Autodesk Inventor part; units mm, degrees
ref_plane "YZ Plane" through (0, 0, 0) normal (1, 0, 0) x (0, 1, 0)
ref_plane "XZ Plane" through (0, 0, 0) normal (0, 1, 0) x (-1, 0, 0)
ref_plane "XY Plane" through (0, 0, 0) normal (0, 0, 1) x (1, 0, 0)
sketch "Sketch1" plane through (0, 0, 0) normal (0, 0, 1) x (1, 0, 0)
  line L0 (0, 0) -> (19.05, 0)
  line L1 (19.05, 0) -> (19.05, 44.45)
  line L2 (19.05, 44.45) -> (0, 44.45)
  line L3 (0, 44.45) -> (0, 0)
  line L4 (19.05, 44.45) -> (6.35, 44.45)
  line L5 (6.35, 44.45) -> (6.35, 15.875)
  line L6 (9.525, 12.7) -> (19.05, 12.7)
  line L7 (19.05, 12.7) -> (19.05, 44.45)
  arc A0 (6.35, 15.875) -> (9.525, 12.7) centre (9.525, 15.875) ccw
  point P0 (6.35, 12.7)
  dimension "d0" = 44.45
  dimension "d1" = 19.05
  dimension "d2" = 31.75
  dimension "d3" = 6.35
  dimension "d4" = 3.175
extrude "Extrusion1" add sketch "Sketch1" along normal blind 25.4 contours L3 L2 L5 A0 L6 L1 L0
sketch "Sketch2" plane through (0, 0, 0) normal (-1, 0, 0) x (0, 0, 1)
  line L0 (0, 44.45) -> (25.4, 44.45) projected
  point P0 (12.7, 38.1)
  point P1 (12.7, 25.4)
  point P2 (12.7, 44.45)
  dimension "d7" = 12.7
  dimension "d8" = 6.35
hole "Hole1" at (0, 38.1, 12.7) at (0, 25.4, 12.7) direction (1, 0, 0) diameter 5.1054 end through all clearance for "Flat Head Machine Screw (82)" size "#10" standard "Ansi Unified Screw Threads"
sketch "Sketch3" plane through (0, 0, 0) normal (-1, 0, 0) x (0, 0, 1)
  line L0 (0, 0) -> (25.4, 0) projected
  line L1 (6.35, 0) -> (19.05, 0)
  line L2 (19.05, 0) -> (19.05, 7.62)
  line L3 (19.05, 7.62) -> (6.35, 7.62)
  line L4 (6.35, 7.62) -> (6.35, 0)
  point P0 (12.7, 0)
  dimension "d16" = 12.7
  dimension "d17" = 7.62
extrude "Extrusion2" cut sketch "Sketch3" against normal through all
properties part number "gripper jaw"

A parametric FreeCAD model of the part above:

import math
import FreeCAD as App
import Part
import Sketcher

V = App.Vector
Q = App.Units.Quantity


def add_polygon(sketch, points):
    """Adds a closed chain of lines whose ends are joined by coincident constraints."""
    first, n = sketch.GeometryCount, len(points)
    for a, b in zip(points, points[1:] + points[:1]):
        sketch.addGeometry(Part.LineSegment(App.Vector(*a, 0), App.Vector(*b, 0)), False)
    for i in range(n):
        sketch.addConstraint(Sketcher.Constraint("Coincident", first + i, 2, first + (i + 1) % n, 1))

doc = App.newDocument("Part")
body = doc.addObject("PartDesign::Body", "Body")

# Sketch on XY plane
sketch1 = body.newObject("Sketcher::SketchObject", "Sketch")
sketch1.AttachmentSupport = (doc.getObject("XY_Plane"), [""])
sketch1.MapMode = "FlatFace"
sketch1.addGeometry(Part.LineSegment(V(0, 44.45, 0), V(0, 0, 0)), False)
sketch1.addGeometry(Part.LineSegment(V(0, 0, 0), V(19.05, 0, 0)), False)
sketch1.addGeometry(Part.LineSegment(V(19.05, 0, 0), V(19.05, 12.7, 0)), False)
sketch1.addGeometry(Part.LineSegment(V(19.05, 12.7, 0), V(9.525, 12.7, 0)), False)
sketch1.addGeometry(Part.ArcOfCircle(Part.Circle(V(9.525, 15.875, 0), V(0, 0, 1), 3.175), math.radians(180), math.radians(270)), False)
sketch1.addGeometry(Part.LineSegment(V(6.35, 15.875, 0), V(6.35, 44.45, 0)), False)
sketch1.addGeometry(Part.LineSegment(V(6.35, 44.45, 0), V(0, 44.45, 0)), False)
sketch1.addConstraint(Sketcher.Constraint("Coincident", 0, 2, 1, 1))
sketch1.addConstraint(Sketcher.Constraint("Coincident", 1, 2, 2, 1))
sketch1.addConstraint(Sketcher.Constraint("Coincident", 2, 2, 3, 1))
sketch1.addConstraint(Sketcher.Constraint("Tangent", 3, 2, 4, 2))
sketch1.addConstraint(Sketcher.Constraint("Tangent", 4, 1, 5, 1))
sketch1.addConstraint(Sketcher.Constraint("Coincident", 5, 2, 6, 1))
sketch1.addConstraint(Sketcher.Constraint("Coincident", 6, 2, 0, 1))
sketch1.addConstraint(Sketcher.Constraint("Vertical", 0))
sketch1.addConstraint(Sketcher.Constraint("Horizontal", 1))
sketch1.addConstraint(Sketcher.Constraint("Vertical", 2))
sketch1.addConstraint(Sketcher.Constraint("Horizontal", 3))
sketch1.addConstraint(Sketcher.Constraint("Vertical", 5))
sketch1.addConstraint(Sketcher.Constraint("Horizontal", 6))
sketch1.addConstraint(Sketcher.Constraint("Coincident", 0, 2, -1, 1))
sketch1.addConstraint(Sketcher.Constraint("Radius", 4, Q("0.125 in")))
sketch1.addConstraint(Sketcher.Constraint("DistanceX", 1, 1, 1, 2, Q("0.75 in")))
sketch1.addConstraint(Sketcher.Constraint("DistanceX", 6, 2, 6, 1, Q("0.25 in")))
sketch1.addConstraint(Sketcher.Constraint("DistanceY", 0, 2, 0, 1, Q("1.75 in")))
sketch1.addConstraint(Sketcher.Constraint("DistanceY", 3, 2, 5, 2, Q("1.25 in")))
pad1 = body.newObject("PartDesign::Pad", "Pad")
pad1.Profile = sketch1
pad1.Length = Q("1 in")

# Sketch on YZ plane
sketch2 = body.newObject("Sketcher::SketchObject", "Sketch001")
sketch2.AttachmentSupport = (doc.getObject("YZ_Plane"), [""])
sketch2.MapMode = "FlatFace"
sketch2.addGeometry(Part.Circle(V(38.1, 12.7, 0), V(0, 0, 1), 2.5527), False)
sketch2.addGeometry(Part.Circle(V(25.4, 12.7, 0), V(0, 0, 1), 2.5527), False)
sketch2.addConstraint(Sketcher.Constraint("Equal", 0, 1))
sketch2.addConstraint(Sketcher.Constraint("Horizontal", 0, 3, 1, 3))
sketch2.addConstraint(Sketcher.Constraint("Diameter", 0, Q("0.201 in")))
sketch2.addConstraint(Sketcher.Constraint("DistanceX", -1, 1, 1, 3, Q("1 in")))
sketch2.addConstraint(Sketcher.Constraint("DistanceX", -1, 1, 0, 3, Q("1.5 in")))
sketch2.addConstraint(Sketcher.Constraint("DistanceY", -1, 1, 0, 3, Q("0.5 in")))
doc.recompute()
hole = body.newObject("PartDesign::Hole", "Hole")
hole.Profile = sketch2
hole.ThreadType = "None"
hole.Diameter = Q("0.201 in")
hole.DepthType = "ThroughAll"
hole.Reversed = True

# Sketch on YZ plane
sketch3 = body.newObject("Sketcher::SketchObject", "Sketch002")
sketch3.AttachmentSupport = (doc.getObject("YZ_Plane"), [""])
sketch3.MapMode = "FlatFace"
add_polygon(sketch3, [(7.62, 6.35), (0, 6.35), (0, 19.05), (7.62, 19.05)])  # lines 0-3
sketch3.addConstraint(Sketcher.Constraint("Horizontal", 0))
sketch3.addConstraint(Sketcher.Constraint("Vertical", 1))
sketch3.addConstraint(Sketcher.Constraint("Horizontal", 2))
sketch3.addConstraint(Sketcher.Constraint("Vertical", 3))
sketch3.addConstraint(Sketcher.Constraint("PointOnObject", 0, 2, -2))
sketch3.addConstraint(Sketcher.Constraint("DistanceX", 0, 2, 0, 1, Q("0.3 in")))
sketch3.addConstraint(Sketcher.Constraint("DistanceY", 1, 1, 1, 2, Q("0.5 in")))
sketch3.addConstraint(Sketcher.Constraint("DistanceY", -1, 1, 0, 2, Q("0.25 in")))
pocket1 = body.newObject("PartDesign::Pocket", "Pocket")
pocket1.Profile = sketch3
pocket1.Type = "ThroughAll"
pocket1.Reversed = True

doc.recompute()
